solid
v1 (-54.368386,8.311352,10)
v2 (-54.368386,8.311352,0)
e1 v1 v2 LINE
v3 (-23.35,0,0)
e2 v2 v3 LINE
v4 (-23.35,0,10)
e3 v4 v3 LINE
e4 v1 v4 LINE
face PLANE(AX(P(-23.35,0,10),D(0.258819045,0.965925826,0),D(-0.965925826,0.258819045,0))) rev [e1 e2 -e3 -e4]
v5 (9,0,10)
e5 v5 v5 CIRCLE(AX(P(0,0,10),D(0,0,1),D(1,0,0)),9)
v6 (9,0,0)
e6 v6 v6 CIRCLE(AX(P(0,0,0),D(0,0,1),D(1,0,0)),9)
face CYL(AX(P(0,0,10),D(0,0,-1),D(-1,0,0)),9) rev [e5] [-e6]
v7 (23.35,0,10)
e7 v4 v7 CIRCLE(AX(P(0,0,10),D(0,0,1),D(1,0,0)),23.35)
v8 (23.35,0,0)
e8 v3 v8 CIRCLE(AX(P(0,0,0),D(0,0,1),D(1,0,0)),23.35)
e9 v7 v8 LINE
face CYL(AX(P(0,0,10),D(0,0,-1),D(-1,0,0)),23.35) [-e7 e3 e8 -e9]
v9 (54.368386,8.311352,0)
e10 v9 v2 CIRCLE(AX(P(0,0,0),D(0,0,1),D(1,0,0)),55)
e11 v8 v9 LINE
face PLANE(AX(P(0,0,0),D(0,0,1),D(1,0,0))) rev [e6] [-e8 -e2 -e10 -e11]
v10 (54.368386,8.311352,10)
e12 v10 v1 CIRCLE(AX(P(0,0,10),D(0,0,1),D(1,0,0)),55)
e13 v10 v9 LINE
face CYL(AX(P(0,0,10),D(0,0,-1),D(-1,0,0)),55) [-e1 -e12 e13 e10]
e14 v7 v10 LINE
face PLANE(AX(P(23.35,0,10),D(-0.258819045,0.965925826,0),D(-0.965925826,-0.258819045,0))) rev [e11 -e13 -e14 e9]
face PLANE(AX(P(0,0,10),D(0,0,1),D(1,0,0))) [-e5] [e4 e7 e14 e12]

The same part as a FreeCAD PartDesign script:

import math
import FreeCAD as App
import Part
import Sketcher
Q = App.Units.Quantity

doc = App.newDocument("Part")
params = doc.addObject("Spreadsheet::Sheet", "Params")
for row, (alias, value) in enumerate([
    ("sketch1_diameter", "18 mm"),
    ("sketch1_radius", "55 mm"),
    ("sketch1_radius2", "23.35 mm"),
    ("pad1_length", "10 mm"),
], start=1):
    params.set(f"A{row}", alias)
    params.set(f"B{row}", "=" + value)
    params.setAlias(f"B{row}", alias)

body = doc.addObject("PartDesign::Body", "Body")

sketch1 = body.newObject("Sketcher::SketchObject", "Sketch")
sketch1.AttachmentSupport = (doc.getObject("XY_Plane"), [""])
sketch1.MapMode = "FlatFace"
sketch1.addGeometry([
    Part.LineSegment(App.Vector(-54, 8, 0), App.Vector(-23, 0, 0)),
    Part.ArcOfCircle(Part.Circle(App.Vector(0, 0, 0), App.Vector(0, 0, 1), 23), math.radians(180), math.radians(360)),
    Part.LineSegment(App.Vector(23, 0, 0), App.Vector(54, 8, 0)),
    Part.ArcOfCircle(Part.Circle(App.Vector(0, 0, 0), App.Vector(0, 0, 1), 55), math.radians(9), math.radians(171)),
    Part.Circle(App.Vector(0, 0, 0), App.Vector(0, 0, 1), 9),
], False)
sketch1.addConstraint([
    Sketcher.Constraint("Coincident", 0, 2, 1, 1),
    Sketcher.Constraint("Coincident", 1, 2, 2, 1),
    Sketcher.Constraint("Coincident", 2, 2, 3, 1),
    Sketcher.Constraint("Coincident", 3, 2, 0, 1),
    Sketcher.Constraint("Coincident", 1, 3, -1, 1),
    Sketcher.Constraint("Coincident", 3, 3, -1, 1),
    Sketcher.Constraint("Coincident", 4, 3, -1, 1),
    Sketcher.Constraint("PointOnObject", 0, 2, -1),
    Sketcher.Constraint("PointOnObject", 1, 2, -1),
    Sketcher.Constraint("Horizontal", 2, 2, 3, 2),
    Sketcher.Constraint("Diameter", 4, Q("18 mm")),
    Sketcher.Constraint("Radius", 3, Q("55 mm")),
    Sketcher.Constraint("Angle", 0, Q("-15 deg")),
    Sketcher.Constraint("Radius", 1, Q("23.35 mm")),
])
sketch1.setExpression("Constraints[10]", "Params.sketch1_diameter")
sketch1.setExpression("Constraints[11]", "Params.sketch1_radius")
sketch1.setExpression("Constraints[13]", "Params.sketch1_radius2")
pad1 = body.newObject("PartDesign::Pad", "Pad")
pad1.Profile = sketch1
pad1.setExpression("Length", "Params.pad1_length")

doc.recompute()
